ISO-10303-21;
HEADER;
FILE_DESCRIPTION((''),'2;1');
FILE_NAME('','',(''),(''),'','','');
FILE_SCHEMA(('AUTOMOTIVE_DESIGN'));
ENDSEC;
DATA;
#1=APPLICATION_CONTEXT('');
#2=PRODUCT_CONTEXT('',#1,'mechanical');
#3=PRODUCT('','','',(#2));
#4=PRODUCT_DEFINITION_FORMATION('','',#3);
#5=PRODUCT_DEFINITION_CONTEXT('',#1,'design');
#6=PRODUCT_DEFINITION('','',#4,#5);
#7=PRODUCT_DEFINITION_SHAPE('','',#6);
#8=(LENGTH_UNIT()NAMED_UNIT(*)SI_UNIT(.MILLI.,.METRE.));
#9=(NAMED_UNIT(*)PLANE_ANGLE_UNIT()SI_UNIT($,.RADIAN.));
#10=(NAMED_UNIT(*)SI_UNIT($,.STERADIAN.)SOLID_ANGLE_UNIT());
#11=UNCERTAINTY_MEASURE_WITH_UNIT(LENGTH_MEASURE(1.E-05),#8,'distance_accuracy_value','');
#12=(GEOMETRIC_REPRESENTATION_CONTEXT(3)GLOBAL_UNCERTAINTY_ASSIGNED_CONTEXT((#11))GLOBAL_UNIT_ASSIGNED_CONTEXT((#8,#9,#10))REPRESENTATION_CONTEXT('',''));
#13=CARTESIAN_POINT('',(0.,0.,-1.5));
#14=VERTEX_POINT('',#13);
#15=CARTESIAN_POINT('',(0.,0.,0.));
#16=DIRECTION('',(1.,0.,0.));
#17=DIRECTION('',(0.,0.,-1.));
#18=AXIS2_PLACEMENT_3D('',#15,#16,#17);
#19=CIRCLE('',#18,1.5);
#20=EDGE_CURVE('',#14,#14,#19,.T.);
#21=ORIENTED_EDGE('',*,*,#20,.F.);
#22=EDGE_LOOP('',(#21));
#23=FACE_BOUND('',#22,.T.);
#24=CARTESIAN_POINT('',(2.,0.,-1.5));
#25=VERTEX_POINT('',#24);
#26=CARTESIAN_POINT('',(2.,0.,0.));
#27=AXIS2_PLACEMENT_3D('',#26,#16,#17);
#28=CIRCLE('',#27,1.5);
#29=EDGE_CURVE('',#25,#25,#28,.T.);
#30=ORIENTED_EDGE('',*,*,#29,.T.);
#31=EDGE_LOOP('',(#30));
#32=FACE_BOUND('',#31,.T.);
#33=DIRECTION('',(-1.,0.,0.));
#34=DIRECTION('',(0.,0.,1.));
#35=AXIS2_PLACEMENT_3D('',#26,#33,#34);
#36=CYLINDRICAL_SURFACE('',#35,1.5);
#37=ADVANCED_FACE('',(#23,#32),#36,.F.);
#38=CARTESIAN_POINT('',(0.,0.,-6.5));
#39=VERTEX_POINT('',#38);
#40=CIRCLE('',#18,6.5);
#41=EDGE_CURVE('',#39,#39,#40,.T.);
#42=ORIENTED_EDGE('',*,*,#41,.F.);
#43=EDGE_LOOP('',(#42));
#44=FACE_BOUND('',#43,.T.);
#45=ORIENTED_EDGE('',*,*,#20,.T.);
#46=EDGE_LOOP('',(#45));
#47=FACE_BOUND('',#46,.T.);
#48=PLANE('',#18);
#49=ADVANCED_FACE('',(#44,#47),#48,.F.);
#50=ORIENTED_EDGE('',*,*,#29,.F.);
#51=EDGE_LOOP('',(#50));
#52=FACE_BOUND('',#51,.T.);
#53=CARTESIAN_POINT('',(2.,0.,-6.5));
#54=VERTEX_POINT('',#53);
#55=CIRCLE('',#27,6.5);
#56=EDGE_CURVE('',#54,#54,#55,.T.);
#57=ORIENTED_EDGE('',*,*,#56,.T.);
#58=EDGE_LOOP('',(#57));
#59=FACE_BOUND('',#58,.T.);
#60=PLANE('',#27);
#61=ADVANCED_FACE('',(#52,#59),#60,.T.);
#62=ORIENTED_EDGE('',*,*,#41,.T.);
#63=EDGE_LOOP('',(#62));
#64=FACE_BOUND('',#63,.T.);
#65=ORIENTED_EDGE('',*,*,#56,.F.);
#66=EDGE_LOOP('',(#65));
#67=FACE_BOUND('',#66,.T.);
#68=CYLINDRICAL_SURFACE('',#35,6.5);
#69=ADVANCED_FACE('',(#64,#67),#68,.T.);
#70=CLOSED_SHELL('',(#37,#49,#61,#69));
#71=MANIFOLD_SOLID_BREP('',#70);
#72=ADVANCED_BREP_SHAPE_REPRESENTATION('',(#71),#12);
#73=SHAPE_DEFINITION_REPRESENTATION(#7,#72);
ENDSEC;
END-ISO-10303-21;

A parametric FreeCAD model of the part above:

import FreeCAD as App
import Part
import Sketcher

doc = App.newDocument("Part")
params = doc.addObject("Spreadsheet::Sheet", "Params")
for row, (alias, value) in enumerate([
    ("sketch1_diameter", "13 mm"),
    ("sketch1_diameter2", "3 mm"),
    ("pad1_length", "2 mm"),
], start=1):
    params.set(f"A{row}", alias)
    params.set(f"B{row}", "=" + value)
    params.setAlias(f"B{row}", alias)

body = doc.addObject("PartDesign::Body", "Body")

# Sketch on YZ plane
sketch1 = doc.addObject("Sketcher::SketchObject", "Sketch")
body.addObject(sketch1)
sketch1.AttachmentSupport = (doc.YZ_Plane, [""])
sketch1.MapMode = "FlatFace"
sketch1.addGeometry([
    Part.Circle(App.Vector(0, 0, 0), App.Vector(0, 0, 1), 6.5),
    Part.Circle(App.Vector(0, 0, 0), App.Vector(0, 0, 1), 1.5),
], False)
sketch1.addConstraint([
    Sketcher.Constraint("Coincident", 0, 3, -1, 1),
    Sketcher.Constraint("Coincident", 1, 3, -1, 1),
    Sketcher.Constraint("Diameter", 0, 13.0),
    Sketcher.Constraint("Diameter", 1, 3.0),
])
sketch1.setExpression("Constraints[2]", "Params.sketch1_diameter")
sketch1.setExpression("Constraints[3]", "Params.sketch1_diameter2")
pad1 = doc.addObject("PartDesign::Pad", "Pad")
body.addObject(pad1)
pad1.Profile = sketch1
pad1.setExpression("Length", "Params.pad1_length")

doc.recompute()
